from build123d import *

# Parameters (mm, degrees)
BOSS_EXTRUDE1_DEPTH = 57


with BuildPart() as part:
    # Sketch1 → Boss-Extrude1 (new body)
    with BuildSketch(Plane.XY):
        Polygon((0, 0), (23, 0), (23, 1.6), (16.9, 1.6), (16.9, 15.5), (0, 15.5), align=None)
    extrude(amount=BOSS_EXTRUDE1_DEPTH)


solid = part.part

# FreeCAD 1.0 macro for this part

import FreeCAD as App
import Part
import Sketcher
Q = App.Units.Quantity


def add_polygon(sketch, points):
    """Adds a closed chain of lines whose ends are joined by coincident constraints."""
    first, n = sketch.GeometryCount, len(points)
    for a, b in zip(points, points[1:] + points[:1]):
        sketch.addGeometry(Part.LineSegment(App.Vector(*a, 0), App.Vector(*b, 0)), False)
    for i in range(n):
        sketch.addConstraint(Sketcher.Constraint("Coincident", first + i, 2, first + (i + 1) % n, 1))

doc = App.newDocument("Part")
body = doc.addObject("PartDesign::Body", "Body")

# Sketch on XY plane
sketch1 = body.newObject("Sketcher::SketchObject", "Sketch")
sketch1.AttachmentSupport = (doc.getObject("XY_Plane"), [""])
sketch1.MapMode = "FlatFace"
add_polygon(sketch1, [(0, 0), (23, 0), (23, 1.6), (16.9, 1.6), (16.9, 15.5), (0, 15.5)])  # lines 0-5
sketch1.addConstraint(Sketcher.Constraint("Horizontal", 0))
sketch1.addConstraint(Sketcher.Constraint("Vertical", 1))
sketch1.addConstraint(Sketcher.Constraint("Horizontal", 2))
sketch1.addConstraint(Sketcher.Constraint("Vertical", 3))
sketch1.addConstraint(Sketcher.Constraint("Horizontal", 4))
sketch1.addConstraint(Sketcher.Constraint("Vertical", 5))
sketch1.addConstraint(Sketcher.Constraint("Coincident", 5, 2, -1, 1))
sketch1.addConstraint(Sketcher.Constraint("DistanceX", 0, 1, 0, 2, Q("23 mm")))
sketch1.addConstraint(Sketcher.Constraint("DistanceX", 2, 2, 2, 1, Q("6.1 mm")))
sketch1.addConstraint(Sketcher.Constraint("DistanceY", 1, 1, 1, 2, Q("1.6 mm")))
sketch1.addConstraint(Sketcher.Constraint("DistanceY", 3, 1, 3, 2, Q("13.9 mm")))
pad1 = body.newObject("PartDesign::Pad", "Pad")
pad1.Profile = sketch1
pad1.Length = 57

doc.recompute()
